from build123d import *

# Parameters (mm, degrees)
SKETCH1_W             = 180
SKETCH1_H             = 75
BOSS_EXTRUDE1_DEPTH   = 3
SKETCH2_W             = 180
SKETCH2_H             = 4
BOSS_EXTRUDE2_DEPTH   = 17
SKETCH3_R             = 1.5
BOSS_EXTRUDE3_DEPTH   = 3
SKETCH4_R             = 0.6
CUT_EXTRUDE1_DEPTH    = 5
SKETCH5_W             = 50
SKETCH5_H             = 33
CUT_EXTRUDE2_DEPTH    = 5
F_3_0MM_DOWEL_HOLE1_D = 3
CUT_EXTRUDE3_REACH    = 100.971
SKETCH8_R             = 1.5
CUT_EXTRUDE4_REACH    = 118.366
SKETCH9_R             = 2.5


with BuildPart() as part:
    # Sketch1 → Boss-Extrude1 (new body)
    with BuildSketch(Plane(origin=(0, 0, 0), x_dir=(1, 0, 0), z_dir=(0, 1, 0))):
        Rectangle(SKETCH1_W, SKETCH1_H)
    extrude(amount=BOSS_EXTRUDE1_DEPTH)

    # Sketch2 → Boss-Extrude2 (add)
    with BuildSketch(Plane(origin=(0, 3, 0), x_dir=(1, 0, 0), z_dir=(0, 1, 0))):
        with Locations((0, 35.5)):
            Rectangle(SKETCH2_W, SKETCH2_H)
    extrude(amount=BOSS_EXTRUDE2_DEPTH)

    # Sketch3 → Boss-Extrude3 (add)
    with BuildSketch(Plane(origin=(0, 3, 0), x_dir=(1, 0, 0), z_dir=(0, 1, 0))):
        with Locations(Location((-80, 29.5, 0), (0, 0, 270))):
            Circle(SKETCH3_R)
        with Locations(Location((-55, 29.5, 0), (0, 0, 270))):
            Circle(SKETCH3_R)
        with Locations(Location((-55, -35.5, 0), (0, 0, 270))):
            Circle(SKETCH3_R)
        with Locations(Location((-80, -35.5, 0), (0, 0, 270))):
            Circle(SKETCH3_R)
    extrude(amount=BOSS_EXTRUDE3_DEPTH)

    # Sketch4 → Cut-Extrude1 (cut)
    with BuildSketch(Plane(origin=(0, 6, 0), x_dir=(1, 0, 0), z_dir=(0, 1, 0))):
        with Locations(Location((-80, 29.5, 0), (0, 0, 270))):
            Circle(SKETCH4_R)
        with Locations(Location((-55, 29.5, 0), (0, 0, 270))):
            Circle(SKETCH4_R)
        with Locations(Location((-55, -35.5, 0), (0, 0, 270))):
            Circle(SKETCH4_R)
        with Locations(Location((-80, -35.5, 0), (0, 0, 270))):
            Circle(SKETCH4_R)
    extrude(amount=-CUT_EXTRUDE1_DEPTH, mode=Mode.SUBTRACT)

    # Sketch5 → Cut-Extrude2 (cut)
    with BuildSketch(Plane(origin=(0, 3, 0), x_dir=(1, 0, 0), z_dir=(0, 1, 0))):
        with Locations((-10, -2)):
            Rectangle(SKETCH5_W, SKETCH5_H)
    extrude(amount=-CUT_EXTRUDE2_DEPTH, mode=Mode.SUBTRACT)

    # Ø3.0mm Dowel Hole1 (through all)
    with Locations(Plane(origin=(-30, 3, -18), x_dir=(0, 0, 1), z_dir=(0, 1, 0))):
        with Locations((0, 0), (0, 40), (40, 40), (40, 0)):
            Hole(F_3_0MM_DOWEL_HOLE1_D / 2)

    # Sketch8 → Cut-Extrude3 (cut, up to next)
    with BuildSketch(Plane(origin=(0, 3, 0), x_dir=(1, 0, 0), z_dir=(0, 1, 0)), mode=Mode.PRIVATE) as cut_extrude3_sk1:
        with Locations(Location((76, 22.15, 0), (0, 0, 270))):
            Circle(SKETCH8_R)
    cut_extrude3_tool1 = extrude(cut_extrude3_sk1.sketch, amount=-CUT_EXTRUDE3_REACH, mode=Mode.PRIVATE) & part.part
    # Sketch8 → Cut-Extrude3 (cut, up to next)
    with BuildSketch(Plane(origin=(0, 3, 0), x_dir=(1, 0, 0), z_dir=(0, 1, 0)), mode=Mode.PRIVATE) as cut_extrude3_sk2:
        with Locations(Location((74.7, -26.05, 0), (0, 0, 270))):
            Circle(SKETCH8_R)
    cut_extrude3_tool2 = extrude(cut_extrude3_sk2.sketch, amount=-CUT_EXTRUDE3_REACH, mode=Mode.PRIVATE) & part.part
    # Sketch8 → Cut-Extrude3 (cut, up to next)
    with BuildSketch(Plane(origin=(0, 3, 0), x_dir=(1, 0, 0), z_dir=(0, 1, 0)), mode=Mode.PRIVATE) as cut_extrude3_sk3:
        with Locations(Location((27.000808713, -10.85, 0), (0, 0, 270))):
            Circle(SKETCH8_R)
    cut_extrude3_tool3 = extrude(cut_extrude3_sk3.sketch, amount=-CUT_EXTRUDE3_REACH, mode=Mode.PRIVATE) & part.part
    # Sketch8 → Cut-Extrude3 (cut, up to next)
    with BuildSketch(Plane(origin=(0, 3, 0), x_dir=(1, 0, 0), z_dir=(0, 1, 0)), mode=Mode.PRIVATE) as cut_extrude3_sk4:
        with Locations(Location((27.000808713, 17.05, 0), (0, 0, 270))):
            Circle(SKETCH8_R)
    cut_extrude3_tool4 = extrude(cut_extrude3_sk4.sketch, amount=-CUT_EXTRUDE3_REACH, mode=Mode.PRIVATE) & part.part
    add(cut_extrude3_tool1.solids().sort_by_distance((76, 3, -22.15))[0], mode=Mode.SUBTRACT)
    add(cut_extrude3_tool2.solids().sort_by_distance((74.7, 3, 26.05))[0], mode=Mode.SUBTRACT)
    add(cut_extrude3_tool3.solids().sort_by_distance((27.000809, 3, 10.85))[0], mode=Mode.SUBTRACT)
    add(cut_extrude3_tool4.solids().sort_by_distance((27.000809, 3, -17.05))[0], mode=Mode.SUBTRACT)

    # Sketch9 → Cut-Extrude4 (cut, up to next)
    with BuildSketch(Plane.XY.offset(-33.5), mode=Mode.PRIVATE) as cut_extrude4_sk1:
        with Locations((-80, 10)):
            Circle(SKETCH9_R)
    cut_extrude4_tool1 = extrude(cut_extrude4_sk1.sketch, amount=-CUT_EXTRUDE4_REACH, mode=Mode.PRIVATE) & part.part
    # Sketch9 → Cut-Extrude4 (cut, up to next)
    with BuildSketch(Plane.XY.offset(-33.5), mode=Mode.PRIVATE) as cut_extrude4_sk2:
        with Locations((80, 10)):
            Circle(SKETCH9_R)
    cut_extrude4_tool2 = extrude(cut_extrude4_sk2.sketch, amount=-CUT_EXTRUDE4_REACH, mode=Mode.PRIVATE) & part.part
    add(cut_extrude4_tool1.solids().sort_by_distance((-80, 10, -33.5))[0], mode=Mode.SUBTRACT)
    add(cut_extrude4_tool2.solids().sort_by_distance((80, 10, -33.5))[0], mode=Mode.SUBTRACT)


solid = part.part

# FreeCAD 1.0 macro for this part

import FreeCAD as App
import Part
import Sketcher
from FreeCAD import Vector

doc = App.newDocument("Part")
body = doc.addObject("PartDesign::Body", "Body")

# Sketch on XZ plane
sketch1 = body.newObject("Sketcher::SketchObject", "Sketch")
sketch1.AttachmentSupport = (doc.getObject("XZ_Plane"), [""])
sketch1.MapMode = "FlatFace"
sketch1.addGeometry([
    Part.LineSegment(Vector(-90, -37.5, 0), Vector(-90, 37.5, 0)),
    Part.LineSegment(Vector(-90, 37.5, 0), Vector(90, 37.5, 0)),
    Part.LineSegment(Vector(90, 37.5, 0), Vector(90, -37.5, 0)),
    Part.LineSegment(Vector(90, -37.5, 0), Vector(-90, -37.5, 0)),
], False)
sketch1.addConstraint([
    Sketcher.Constraint("Coincident", 0, 2, 1, 1),
    Sketcher.Constraint("Coincident", 1, 2, 2, 1),
    Sketcher.Constraint("Coincident", 2, 2, 3, 1),
    Sketcher.Constraint("Coincident", 3, 2, 0, 1),
    Sketcher.Constraint("Vertical", 0),
    Sketcher.Constraint("Horizontal", 1),
    Sketcher.Constraint("Vertical", 2),
    Sketcher.Constraint("Horizontal", 3),
    Sketcher.Constraint("Symmetric", 0, 2, 2, 2, -1, 1),
    Sketcher.Constraint("DistanceX", 1, 1, 1, 2, 180.0),
    Sketcher.Constraint("DistanceY", 0, 1, 0, 2, 75.0),
])
pad1 = body.newObject("PartDesign::Pad", "Pad")
pad1.Profile = sketch1
pad1.Length = 3
pad1.Reversed = True

# Sketch on XZ plane
sketch2 = body.newObject("Sketcher::SketchObject", "Sketch001")
sketch2.AttachmentSupport = (doc.getObject("XZ_Plane"), [""])
sketch2.MapMode = "FlatFace"
sketch2.AttachmentOffset = App.Placement(Vector(0, 0, -3), App.Rotation())
sketch2.addGeometry([
    Part.LineSegment(Vector(-90, -37.5, 0), Vector(-90, -33.5, 0)),
    Part.LineSegment(Vector(-90, -33.5, 0), Vector(90, -33.5, 0)),
    Part.LineSegment(Vector(90, -33.5, 0), Vector(90, -37.5, 0)),
    Part.LineSegment(Vector(90, -37.5, 0), Vector(-90, -37.5, 0)),
], False)
sketch2.addConstraint([
    Sketcher.Constraint("Coincident", 0, 2, 1, 1),
    Sketcher.Constraint("Coincident", 1, 2, 2, 1),
    Sketcher.Constraint("Coincident", 2, 2, 3, 1),
    Sketcher.Constraint("Coincident", 3, 2, 0, 1),
    Sketcher.Constraint("Vertical", 0),
    Sketcher.Constraint("Horizontal", 1),
    Sketcher.Constraint("Vertical", 2),
    Sketcher.Constraint("Horizontal", 3),
    Sketcher.Constraint("DistanceX", 1, 1, 1, 2, 180.0),
    Sketcher.Constraint("DistanceY", 0, 1, 0, 2, 4.0),
    Sketcher.Constraint("DistanceX", 0, 2, -1, 1, 90.0),
    Sketcher.Constraint("DistanceY", 0, 2, -1, 1, 33.5),
])
pad2 = body.newObject("PartDesign::Pad", "Pad001")
pad2.Profile = sketch2
pad2.Length = 17
pad2.Reversed = True

# Sketch on XZ plane
sketch3 = body.newObject("Sketcher::SketchObject", "Sketch002")
sketch3.AttachmentSupport = (doc.getObject("XZ_Plane"), [""])
sketch3.MapMode = "FlatFace"
sketch3.AttachmentOffset = App.Placement(Vector(0, 0, -3), App.Rotation())
sketch3.addGeometry([
    Part.Circle(Vector(-80, -29.5, 0), Vector(0, 0, 1), 1.5),
    Part.Circle(Vector(-55, -29.5, 0), Vector(0, 0, 1), 1.5),
    Part.Circle(Vector(-55, 35.5, 0), Vector(0, 0, 1), 1.5),
    Part.Circle(Vector(-80, 35.5, 0), Vector(0, 0, 1), 1.5),
], False)
sketch3.addConstraint([
    Sketcher.Constraint("Equal", 0, 1),
    Sketcher.Constraint("Equal", 1, 2),
    Sketcher.Constraint("Equal", 2, 3),
    Sketcher.Constraint("Horizontal", 0, 3, 1, 3),
    Sketcher.Constraint("Horizontal", 2, 3, 3, 3),
    Sketcher.Constraint("Vertical", 1, 3, 2, 3),
    Sketcher.Constraint("Vertical", 0, 3, 3, 3),
    Sketcher.Constraint("Diameter", 0, 3.0),
    Sketcher.Constraint("DistanceX", 0, 3, -1, 1, 80.0),
    Sketcher.Constraint("DistanceX", 1, 3, -1, 1, 55.0),
    Sketcher.Constraint("DistanceY", 1, 3, 2, 3, 65.0),
    Sketcher.Constraint("DistanceY", 0, 3, -1, 1, 29.5),
])
pad3 = body.newObject("PartDesign::Pad", "Pad002")
pad3.Profile = sketch3
pad3.Length = 3
pad3.Reversed = True

# Sketch on XZ plane
sketch4 = body.newObject("Sketcher::SketchObject", "Sketch003")
sketch4.AttachmentSupport = (doc.getObject("XZ_Plane"), [""])
sketch4.MapMode = "FlatFace"
sketch4.AttachmentOffset = App.Placement(Vector(0, 0, -6), App.Rotation())
sketch4.addGeometry([
    Part.Circle(Vector(-80, -29.5, 0), Vector(0, 0, 1), 0.6),
    Part.Circle(Vector(-55, -29.5, 0), Vector(0, 0, 1), 0.6),
    Part.Circle(Vector(-55, 35.5, 0), Vector(0, 0, 1), 0.6),
    Part.Circle(Vector(-80, 35.5, 0), Vector(0, 0, 1), 0.6),
], False)
sketch4.addConstraint([
    Sketcher.Constraint("Equal", 0, 1),
    Sketcher.Constraint("Equal", 1, 2),
    Sketcher.Constraint("Equal", 2, 3),
    Sketcher.Constraint("Horizontal", 0, 3, 1, 3),
    Sketcher.Constraint("Horizontal", 2, 3, 3, 3),
    Sketcher.Constraint("Vertical", 1, 3, 2, 3),
    Sketcher.Constraint("Vertical", 0, 3, 3, 3),
    Sketcher.Constraint("Diameter", 0, 1.2),
    Sketcher.Constraint("DistanceX", 0, 3, -1, 1, 80.0),
    Sketcher.Constraint("DistanceX", 1, 3, -1, 1, 55.0),
    Sketcher.Constraint("DistanceY", 1, 3, 2, 3, 65.0),
    Sketcher.Constraint("DistanceY", 0, 3, -1, 1, 29.5),
])
pocket1 = body.newObject("PartDesign::Pocket", "Pocket")
pocket1.Profile = sketch4
pocket1.Length = 5
pocket1.Reversed = True

# Sketch on XZ plane
sketch5 = body.newObject("Sketcher::SketchObject", "Sketch004")
sketch5.AttachmentSupport = (doc.getObject("XZ_Plane"), [""])
sketch5.MapMode = "FlatFace"
sketch5.AttachmentOffset = App.Placement(Vector(0, 0, -3), App.Rotation())
sketch5.addGeometry([
    Part.LineSegment(Vector(-35, -14.5, 0), Vector(-35, 18.5, 0)),
    Part.LineSegment(Vector(-35, 18.5, 0), Vector(15, 18.5, 0)),
    Part.LineSegment(Vector(15, 18.5, 0), Vector(15, -14.5, 0)),
    Part.LineSegment(Vector(15, -14.5, 0), Vector(-35, -14.5, 0)),
], False)
sketch5.addConstraint([
    Sketcher.Constraint("Coincident", 0, 2, 1, 1),
    Sketcher.Constraint("Coincident", 1, 2, 2, 1),
    Sketcher.Constraint("Coincident", 2, 2, 3, 1),
    Sketcher.Constraint("Coincident", 3, 2, 0, 1),
    Sketcher.Constraint("Vertical", 0),
    Sketcher.Constraint("Horizontal", 1),
    Sketcher.Constraint("Vertical", 2),
    Sketcher.Constraint("Horizontal", 3),
    Sketcher.Constraint("DistanceX", 1, 1, 1, 2, 50.0),
    Sketcher.Constraint("DistanceY", 0, 1, 0, 2, 33.0),
    Sketcher.Constraint("DistanceX", 0, 2, -1, 1, 35.0),
    Sketcher.Constraint("DistanceY", -1, 1, 0, 2, 18.5),
])
pocket2 = body.newObject("PartDesign::Pocket", "Pocket001")
pocket2.Profile = sketch5
pocket2.Length = 5
pocket2.Reversed = True

# Sketch on XZ plane
sketch6 = body.newObject("Sketcher::SketchObject", "Sketch005")
sketch6.AttachmentSupport = (doc.getObject("XZ_Plane"), [""])
sketch6.MapMode = "FlatFace"
sketch6.AttachmentOffset = App.Placement(Vector(0, 0, -3), App.Rotation())
sketch6.addGeometry([
    Part.Circle(Vector(-30, -18, 0), Vector(0, 0, 1), 1.5),
    Part.Circle(Vector(10, -18, 0), Vector(0, 0, 1), 1.5),
    Part.Circle(Vector(10, 22, 0), Vector(0, 0, 1), 1.5),
    Part.Circle(Vector(-30, 22, 0), Vector(0, 0, 1), 1.5),
], False)
sketch6.addConstraint([
    Sketcher.Constraint("Equal", 0, 1),
    Sketcher.Constraint("Equal", 1, 2),
    Sketcher.Constraint("Equal", 2, 3),
    Sketcher.Constraint("Horizontal", 0, 3, 1, 3),
    Sketcher.Constraint("Horizontal", 2, 3, 3, 3),
    Sketcher.Constraint("Vertical", 1, 3, 2, 3),
    Sketcher.Constraint("Vertical", 0, 3, 3, 3),
    Sketcher.Constraint("Diameter", 0, 3.0),
    Sketcher.Constraint("DistanceX", 0, 3, -1, 1, 30.0),
    Sketcher.Constraint("DistanceY", 0, 3, -1, 1, 18.0),
    Sketcher.Constraint("DistanceX", -1, 1, 1, 3, 10.0),
    Sketcher.Constraint("DistanceY", -1, 1, 2, 3, 22.0),
])
doc.recompute()
hole = body.newObject("PartDesign::Hole", "Hole")
hole.Profile = sketch6
hole.ThreadType = "None"
hole.Diameter = 3
hole.DepthType = "ThroughAll"
hole.Reversed = True

# Sketch on XZ plane
sketch7 = body.newObject("Sketcher::SketchObject", "Sketch006")
sketch7.AttachmentSupport = (doc.getObject("XZ_Plane"), [""])
sketch7.MapMode = "FlatFace"
sketch7.AttachmentOffset = App.Placement(Vector(0, 0, -3), App.Rotation())
sketch7.addGeometry(Part.Circle(Vector(76, -22.15, 0), Vector(0, 0, 1), 1.5), False)
sketch7.addConstraint([
    Sketcher.Constraint("Diameter", 0, 3.0),
    Sketcher.Constraint("DistanceX", -1, 1, 0, 3, 76.0),
    Sketcher.Constraint("DistanceY", 0, 3, -1, 1, 22.15),
])
pocket3 = body.newObject("PartDesign::Pocket", "Pocket002")
pocket3.Profile = sketch7
pocket3.Type = "UpToFirst"
pocket3.Reversed = True

# Sketch on XZ plane
sketch8 = body.newObject("Sketcher::SketchObject", "Sketch007")
sketch8.AttachmentSupport = (doc.getObject("XZ_Plane"), [""])
sketch8.MapMode = "FlatFace"
sketch8.AttachmentOffset = App.Placement(Vector(0, 0, -3), App.Rotation())
sketch8.addGeometry(Part.Circle(Vector(74.7, 26.05, 0), Vector(0, 0, 1), 1.5), False)
sketch8.addConstraint([
    Sketcher.Constraint("Diameter", 0, 3.0),
    Sketcher.Constraint("DistanceX", -1, 1, 0, 3, 74.7),
    Sketcher.Constraint("DistanceY", -1, 1, 0, 3, 26.05),
])
pocket4 = body.newObject("PartDesign::Pocket", "Pocket003")
pocket4.Profile = sketch8
pocket4.Type = "UpToFirst"
pocket4.Reversed = True

# Sketch on XZ plane
sketch9 = body.newObject("Sketcher::SketchObject", "Sketch008")
sketch9.AttachmentSupport = (doc.getObject("XZ_Plane"), [""])
sketch9.MapMode = "FlatFace"
sketch9.AttachmentOffset = App.Placement(Vector(0, 0, -3), App.Rotation())
sketch9.addGeometry(Part.Circle(Vector(27.000809, 10.85, 0), Vector(0, 0, 1), 1.5), False)
sketch9.addConstraint([
    Sketcher.Constraint("Diameter", 0, 3.0),
    Sketcher.Constraint("DistanceY", -1, 1, 0, 3, 10.85),
    Sketcher.Constraint("DistanceX", -1, 1, 0, 3, 27.000809),
])
pocket5 = body.newObject("PartDesign::Pocket", "Pocket004")
pocket5.Profile = sketch9
pocket5.Type = "UpToFirst"
pocket5.Reversed = True

# Sketch on XZ plane
sketch10 = body.newObject("Sketcher::SketchObject", "Sketch009")
sketch10.AttachmentSupport = (doc.getObject("XZ_Plane"), [""])
sketch10.MapMode = "FlatFace"
sketch10.AttachmentOffset = App.Placement(Vector(0, 0, -3), App.Rotation())
sketch10.addGeometry(Part.Circle(Vector(27.000809, -17.05, 0), Vector(0, 0, 1), 1.5), False)
sketch10.addConstraint([
    Sketcher.Constraint("Diameter", 0, 3.0),
    Sketcher.Constraint("DistanceY", 0, 3, -1, 1, 17.05),
    Sketcher.Constraint("DistanceX", -1, 1, 0, 3, 27.000809),
])
pocket6 = body.newObject("PartDesign::Pocket", "Pocket005")
pocket6.Profile = sketch10
pocket6.Type = "UpToFirst"
pocket6.Reversed = True

# Sketch on XY plane
sketch11 = body.newObject("Sketcher::SketchObject", "Sketch010")
sketch11.AttachmentSupport = (doc.getObject("XY_Plane"), [""])
sketch11.MapMode = "FlatFace"
sketch11.AttachmentOffset = App.Placement(Vector(0, 0, -33.5), App.Rotation())
sketch11.addGeometry(Part.Circle(Vector(-80, 10, 0), Vector(0, 0, 1), 2.5), False)
sketch11.addConstraint([
    Sketcher.Constraint("Diameter", 0, 5.0),
    Sketcher.Constraint("DistanceX", 0, 3, -1, 1, 80.0),
    Sketcher.Constraint("DistanceY", -1, 1, 0, 3, 10.0),
])
pocket7 = body.newObject("PartDesign::Pocket", "Pocket006")
pocket7.Profile = sketch11
pocket7.Type = "UpToFirst"

# Sketch on XY plane
sketch12 = body.newObject("Sketcher::SketchObject", "Sketch011")
sketch12.AttachmentSupport = (doc.getObject("XY_Plane"), [""])
sketch12.MapMode = "FlatFace"
sketch12.AttachmentOffset = App.Placement(Vector(0, 0, -33.5), App.Rotation())
sketch12.addGeometry(Part.Circle(Vector(80, 10, 0), Vector(0, 0, 1), 2.5), False)
sketch12.addConstraint([
    Sketcher.Constraint("Diameter", 0, 5.0),
    Sketcher.Constraint("DistanceX", -1, 1, 0, 3, 80.0),
    Sketcher.Constraint("DistanceY", -1, 1, 0, 3, 10.0),
])
pocket8 = body.newObject("PartDesign::Pocket", "Pocket007")
pocket8.Profile = sketch12
pocket8.Type = "UpToFirst"

doc.recompute()
